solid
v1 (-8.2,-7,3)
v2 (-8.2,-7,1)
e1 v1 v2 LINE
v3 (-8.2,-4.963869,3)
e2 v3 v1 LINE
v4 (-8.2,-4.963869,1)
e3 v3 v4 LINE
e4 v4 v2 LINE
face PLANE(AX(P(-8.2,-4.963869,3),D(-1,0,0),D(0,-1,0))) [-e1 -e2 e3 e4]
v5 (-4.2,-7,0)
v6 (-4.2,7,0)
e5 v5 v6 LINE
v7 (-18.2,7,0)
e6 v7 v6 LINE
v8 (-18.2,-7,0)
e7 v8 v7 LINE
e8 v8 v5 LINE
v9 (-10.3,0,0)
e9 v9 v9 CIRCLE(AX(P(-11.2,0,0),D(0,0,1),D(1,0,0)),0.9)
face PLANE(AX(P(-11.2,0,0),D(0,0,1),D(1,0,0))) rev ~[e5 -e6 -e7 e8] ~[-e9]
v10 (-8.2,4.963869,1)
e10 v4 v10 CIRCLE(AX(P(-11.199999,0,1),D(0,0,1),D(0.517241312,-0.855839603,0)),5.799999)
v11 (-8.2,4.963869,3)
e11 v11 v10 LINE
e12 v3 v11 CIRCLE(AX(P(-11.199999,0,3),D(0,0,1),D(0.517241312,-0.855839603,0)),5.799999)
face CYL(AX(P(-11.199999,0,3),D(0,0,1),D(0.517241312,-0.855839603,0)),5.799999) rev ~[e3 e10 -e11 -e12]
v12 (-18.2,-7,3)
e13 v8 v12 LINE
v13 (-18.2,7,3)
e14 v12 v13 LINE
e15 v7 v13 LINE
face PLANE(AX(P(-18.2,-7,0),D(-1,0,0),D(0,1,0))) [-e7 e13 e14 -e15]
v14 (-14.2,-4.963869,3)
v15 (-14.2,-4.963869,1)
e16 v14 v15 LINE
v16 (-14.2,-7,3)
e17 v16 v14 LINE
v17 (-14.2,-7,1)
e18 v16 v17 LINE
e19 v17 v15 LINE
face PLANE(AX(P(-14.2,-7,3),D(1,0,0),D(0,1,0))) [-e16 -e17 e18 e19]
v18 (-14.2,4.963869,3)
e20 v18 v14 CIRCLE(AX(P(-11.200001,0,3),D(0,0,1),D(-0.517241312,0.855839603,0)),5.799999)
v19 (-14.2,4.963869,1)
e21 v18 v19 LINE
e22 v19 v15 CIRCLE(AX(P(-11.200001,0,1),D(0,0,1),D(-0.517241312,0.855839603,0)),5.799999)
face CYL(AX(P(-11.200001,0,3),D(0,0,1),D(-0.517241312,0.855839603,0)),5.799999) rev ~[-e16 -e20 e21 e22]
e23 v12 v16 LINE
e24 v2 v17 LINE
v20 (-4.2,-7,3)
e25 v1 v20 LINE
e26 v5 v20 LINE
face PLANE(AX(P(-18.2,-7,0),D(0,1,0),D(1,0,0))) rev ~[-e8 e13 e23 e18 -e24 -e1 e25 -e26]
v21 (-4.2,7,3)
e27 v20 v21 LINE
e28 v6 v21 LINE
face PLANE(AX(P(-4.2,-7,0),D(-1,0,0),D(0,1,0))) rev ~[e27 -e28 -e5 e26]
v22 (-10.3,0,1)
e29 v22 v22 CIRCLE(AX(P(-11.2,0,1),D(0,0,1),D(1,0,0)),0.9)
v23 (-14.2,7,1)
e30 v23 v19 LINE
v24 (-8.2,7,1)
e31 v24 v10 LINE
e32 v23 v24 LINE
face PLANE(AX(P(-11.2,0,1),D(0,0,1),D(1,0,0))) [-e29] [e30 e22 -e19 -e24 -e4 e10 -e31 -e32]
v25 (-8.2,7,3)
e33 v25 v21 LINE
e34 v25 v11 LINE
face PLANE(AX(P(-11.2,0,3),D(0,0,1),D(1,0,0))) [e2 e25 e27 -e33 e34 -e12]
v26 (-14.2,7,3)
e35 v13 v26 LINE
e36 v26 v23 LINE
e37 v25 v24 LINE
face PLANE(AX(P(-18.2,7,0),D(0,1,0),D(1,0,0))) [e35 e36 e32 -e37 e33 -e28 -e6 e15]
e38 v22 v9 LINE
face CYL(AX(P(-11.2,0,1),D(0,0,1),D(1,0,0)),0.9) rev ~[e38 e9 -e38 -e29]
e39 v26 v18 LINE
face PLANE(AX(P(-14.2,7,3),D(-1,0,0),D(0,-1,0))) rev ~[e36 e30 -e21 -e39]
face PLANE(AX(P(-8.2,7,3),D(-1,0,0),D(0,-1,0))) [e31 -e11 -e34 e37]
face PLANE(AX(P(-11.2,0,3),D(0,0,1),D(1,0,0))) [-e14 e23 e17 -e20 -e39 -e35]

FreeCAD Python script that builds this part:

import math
import FreeCAD as App
import Part
import Sketcher
from FreeCAD import Vector
Q = App.Units.Quantity

doc = App.newDocument("Part")
body = doc.addObject("PartDesign::Body", "Body")

sketch1 = doc.addObject("Sketcher::SketchObject", "Sketch")
body.addObject(sketch1)
sketch1.AttachmentSupport = (doc.XY_Plane, [""])
sketch1.MapMode = "FlatFace"
sketch1.addGeometry(Part.LineSegment(Vector(-7, 7, 0), Vector(-7, -7, 0)), False)
sketch1.addGeometry(Part.LineSegment(Vector(-7, -7, 0), Vector(7, -7, 0)), False)
sketch1.addGeometry(Part.LineSegment(Vector(7, -7, 0), Vector(7, 7, 0)), False)
sketch1.addGeometry(Part.LineSegment(Vector(7, 7, 0), Vector(-7, 7, 0)), False)
sketch1.addConstraint(Sketcher.Constraint("Coincident", 0, 2, 1, 1))
sketch1.addConstraint(Sketcher.Constraint("Coincident", 1, 2, 2, 1))
sketch1.addConstraint(Sketcher.Constraint("Coincident", 2, 2, 3, 1))
sketch1.addConstraint(Sketcher.Constraint("Coincident", 3, 2, 0, 1))
sketch1.addConstraint(Sketcher.Constraint("Vertical", 0))
sketch1.addConstraint(Sketcher.Constraint("Horizontal", 1))
sketch1.addConstraint(Sketcher.Constraint("Vertical", 2))
sketch1.addConstraint(Sketcher.Constraint("Horizontal", 3))
sketch1.addConstraint(Sketcher.Constraint("Symmetric", 0, 2, 2, 2, -1, 1))
sketch1.addConstraint(Sketcher.Constraint("Equal", 3, 0))
sketch1.addConstraint(Sketcher.Constraint("DistanceX", 1, 1, 1, 2, Q("14 mm")))
pad1 = doc.addObject("PartDesign::Pad", "Pad")
body.addObject(pad1)
pad1.Profile = sketch1
pad1.Length = 3

sketch2 = doc.addObject("Sketcher::SketchObject", "Sketch001")
body.addObject(sketch2)
sketch2.AttachmentSupport = (doc.XY_Plane, [""])
sketch2.MapMode = "FlatFace"
sketch2.AttachmentOffset = App.Placement(Vector(0, 0, 3), App.Rotation())
sketch2.addGeometry(Part.LineSegment(Vector(-3, 7, 0), Vector(-3, 4.963869, 0)), False)
sketch2.addGeometry(Part.ArcOfCircle(Part.Circle(Vector(-0.000001, 0, 0), Vector(0, 0, 1), 5.799999), math.radians(121.147385), math.radians(238.852615)), False)
sketch2.addGeometry(Part.LineSegment(Vector(-3, -4.963869, 0), Vector(-3, -7, 0)), False)
sketch2.addGeometry(Part.LineSegment(Vector(-3, -7, 0), Vector(3, -7, 0)), False)
sketch2.addGeometry(Part.LineSegment(Vector(3, -7, 0), Vector(3, -4.963869, 0)), False)
sketch2.addGeometry(Part.ArcOfCircle(Part.Circle(Vector(0.000001, 0, 0), Vector(0, 0, 1), 5.799999), math.radians(-58.852615), math.radians(58.852615)), False)
sketch2.addGeometry(Part.LineSegment(Vector(3, 4.963869, 0), Vector(3, 7, 0)), False)
sketch2.addGeometry(Part.LineSegment(Vector(3, 7, 0), Vector(-3, 7, 0)), False)
sketch2.addConstraint(Sketcher.Constraint("Coincident", 0, 2, 1, 1))
sketch2.addConstraint(Sketcher.Constraint("Coincident", 1, 2, 2, 1))
sketch2.addConstraint(Sketcher.Constraint("Coincident", 2, 2, 3, 1))
sketch2.addConstraint(Sketcher.Constraint("Coincident", 3, 2, 4, 1))
sketch2.addConstraint(Sketcher.Constraint("Coincident", 4, 2, 5, 1))
sketch2.addConstraint(Sketcher.Constraint("Coincident", 5, 2, 6, 1))
sketch2.addConstraint(Sketcher.Constraint("Coincident", 6, 2, 7, 1))
sketch2.addConstraint(Sketcher.Constraint("Coincident", 7, 2, 0, 1))
sketch2.addConstraint(Sketcher.Constraint("Vertical", 0))
sketch2.addConstraint(Sketcher.Constraint("Vertical", 2))
sketch2.addConstraint(Sketcher.Constraint("Horizontal", 3))
sketch2.addConstraint(Sketcher.Constraint("Vertical", 4))
sketch2.addConstraint(Sketcher.Constraint("Vertical", 6))
sketch2.addConstraint(Sketcher.Constraint("Horizontal", 7))
sketch2.addConstraint(Sketcher.Constraint("Coincident", 1, 3, -1, 1))
sketch2.addConstraint(Sketcher.Constraint("Coincident", 5, 3, -1, 1))
sketch2.addConstraint(Sketcher.Constraint("Equal", 1, 5))
sketch2.addConstraint(Sketcher.Constraint("Symmetric", 2, 2, 6, 2, -1, 1))
sketch2.addConstraint(Sketcher.Constraint("Horizontal", 1, 2, 4, 2))
sketch2.addConstraint(Sketcher.Constraint("Horizontal", 0, 2, 5, 2))
sketch2.addConstraint(Sketcher.Constraint("Radius", 1, Q("5.799999 mm")))
sketch2.addConstraint(Sketcher.Constraint("DistanceX", 3, 1, 3, 2, Q("6 mm")))
sketch2.addConstraint(Sketcher.Constraint("DistanceY", 2, 2, -1, 1, Q("7 mm")))
pocket1 = doc.addObject("PartDesign::Pocket", "Pocket")
body.addObject(pocket1)
pocket1.Profile = sketch2
pocket1.Length = 2

sketch3 = doc.addObject("Sketcher::SketchObject", "Sketch002")
body.addObject(sketch3)
sketch3.AttachmentSupport = (doc.XY_Plane, [""])
sketch3.MapMode = "FlatFace"
sketch3.AttachmentOffset = App.Placement(Vector(0, 0, 1), App.Rotation())
sketch3.addGeometry(Part.Circle(Vector(0, 0, 0), Vector(0, 0, 1), 0.9), False)
sketch3.addConstraint(Sketcher.Constraint("Coincident", 0, 3, -1, 1))
sketch3.addConstraint(Sketcher.Constraint("Diameter", 0, Q("1.8 mm")))
pocket2 = doc.addObject("PartDesign::Pocket", "Pocket001")
body.addObject(pocket2)
pocket2.Profile = sketch3
pocket2.Type = "ThroughAll"
body2 = doc.addObject("PartDesign::Body", "Body001")
doc.recompute()

body.Placement = App.Placement(Vector(-11.2, 0, 0), App.Rotation(Vector(0, 0, 1), 0))
boolean = doc.addObject("PartDesign::Boolean", "Boolean")
body2.addObject(boolean)
boolean.Type = "Fuse"
boolean.addObjects([body])

doc.recompute()
